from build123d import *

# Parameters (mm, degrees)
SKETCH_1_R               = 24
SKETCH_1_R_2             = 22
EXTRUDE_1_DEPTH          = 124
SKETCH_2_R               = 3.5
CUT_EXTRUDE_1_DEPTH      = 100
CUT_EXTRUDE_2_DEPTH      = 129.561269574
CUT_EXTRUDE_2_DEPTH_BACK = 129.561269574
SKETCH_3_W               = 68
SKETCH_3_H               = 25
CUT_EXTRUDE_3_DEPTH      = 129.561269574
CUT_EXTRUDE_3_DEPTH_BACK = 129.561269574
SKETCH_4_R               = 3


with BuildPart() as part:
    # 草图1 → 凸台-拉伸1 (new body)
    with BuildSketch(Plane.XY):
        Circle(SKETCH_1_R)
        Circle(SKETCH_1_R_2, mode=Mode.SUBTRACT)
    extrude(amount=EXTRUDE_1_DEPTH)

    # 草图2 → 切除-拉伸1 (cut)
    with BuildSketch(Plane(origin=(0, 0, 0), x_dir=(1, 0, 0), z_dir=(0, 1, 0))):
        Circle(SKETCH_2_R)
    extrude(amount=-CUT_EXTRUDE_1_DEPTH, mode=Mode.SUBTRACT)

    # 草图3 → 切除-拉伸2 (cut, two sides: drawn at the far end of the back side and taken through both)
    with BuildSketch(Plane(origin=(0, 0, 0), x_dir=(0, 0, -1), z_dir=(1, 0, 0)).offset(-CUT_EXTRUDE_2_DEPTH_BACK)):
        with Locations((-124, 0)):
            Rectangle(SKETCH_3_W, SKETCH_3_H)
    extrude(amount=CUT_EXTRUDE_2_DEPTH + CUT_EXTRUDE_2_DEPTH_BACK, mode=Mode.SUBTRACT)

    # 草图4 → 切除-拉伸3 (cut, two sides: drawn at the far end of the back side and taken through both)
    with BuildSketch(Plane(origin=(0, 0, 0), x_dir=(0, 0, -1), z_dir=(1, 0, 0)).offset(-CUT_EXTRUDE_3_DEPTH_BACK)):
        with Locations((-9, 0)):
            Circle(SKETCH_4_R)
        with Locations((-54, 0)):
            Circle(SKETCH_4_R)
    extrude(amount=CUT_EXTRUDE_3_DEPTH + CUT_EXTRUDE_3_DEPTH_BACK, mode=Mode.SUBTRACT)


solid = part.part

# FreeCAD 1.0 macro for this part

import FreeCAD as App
import Part
import Sketcher
Q = App.Units.Quantity

doc = App.newDocument("Part")
body = doc.addObject("PartDesign::Body", "Body")

# Sketch on XY plane
sketch1 = doc.addObject("Sketcher::SketchObject", "Sketch")
body.addObject(sketch1)
sketch1.AttachmentSupport = (doc.XY_Plane, [""])
sketch1.MapMode = "FlatFace"
sketch1.addGeometry([
    Part.Circle(App.Vector(0, 0, 0), App.Vector(0, 0, 1), 24),
    Part.Circle(App.Vector(0, 0, 0), App.Vector(0, 0, 1), 22),
], False)
sketch1.addConstraint([
    Sketcher.Constraint("Coincident", 0, 3, -1, 1),
    Sketcher.Constraint("Coincident", 1, 3, -1, 1),
    Sketcher.Constraint("Diameter", 0, Q("48 mm")),
    Sketcher.Constraint("Diameter", 1, Q("44 mm")),
])
pad1 = doc.addObject("PartDesign::Pad", "Pad")
body.addObject(pad1)
pad1.Profile = sketch1
pad1.Length = 124

# Sketch on XZ plane
sketch2 = doc.addObject("Sketcher::SketchObject", "Sketch001")
body.addObject(sketch2)
sketch2.AttachmentSupport = (doc.XZ_Plane, [""])
sketch2.MapMode = "FlatFace"
sketch2.addGeometry(Part.Circle(App.Vector(0, 0, 0), App.Vector(0, 0, 1), 3.5), False)
sketch2.addConstraint([
    Sketcher.Constraint("Coincident", 0, 3, -1, 1),
    Sketcher.Constraint("Diameter", 0, Q("7 mm")),
])
pocket1 = doc.addObject("PartDesign::Pocket", "Pocket")
body.addObject(pocket1)
pocket1.Profile = sketch2
pocket1.Length = 100
pocket1.Reversed = True

# Sketch on YZ plane
sketch3 = doc.addObject("Sketcher::SketchObject", "Sketch002")
body.addObject(sketch3)
sketch3.AttachmentSupport = (doc.YZ_Plane, [""])
sketch3.MapMode = "FlatFace"
sketch3.addGeometry([
    Part.LineSegment(App.Vector(12, 158, 0), App.Vector(-12, 158, 0)),
    Part.LineSegment(App.Vector(-12, 158, 0), App.Vector(-12, 90, 0)),
    Part.LineSegment(App.Vector(-12, 90, 0), App.Vector(12, 90, 0)),
    Part.LineSegment(App.Vector(12, 90, 0), App.Vector(12, 158, 0)),
], False)
sketch3.addConstraint([
    Sketcher.Constraint("Coincident", 0, 2, 1, 1),
    Sketcher.Constraint("Coincident", 1, 2, 2, 1),
    Sketcher.Constraint("Coincident", 2, 2, 3, 1),
    Sketcher.Constraint("Coincident", 3, 2, 0, 1),
    Sketcher.Constraint("Horizontal", 0),
    Sketcher.Constraint("Vertical", 1),
    Sketcher.Constraint("Horizontal", 2),
    Sketcher.Constraint("Vertical", 3),
    Sketcher.Constraint("DistanceX", 0, 2, 0, 1, Q("25 mm")),
    Sketcher.Constraint("DistanceY", 1, 2, 1, 1, Q("68 mm")),
    Sketcher.Constraint("DistanceY", -1, 1, 0, 2, Q("158 mm")),
    Sketcher.Constraint("DistanceX", 0, 2, -1, 1, Q("12.5 mm")),
])
pocket2 = doc.addObject("PartDesign::Pocket", "Pocket001")
body.addObject(pocket2)
pocket2.Profile = sketch3
pocket2.Type = "ThroughAll"
pocket2.Midplane = True

# Sketch on YZ plane
sketch4 = doc.addObject("Sketcher::SketchObject", "Sketch003")
body.addObject(sketch4)
sketch4.AttachmentSupport = (doc.YZ_Plane, [""])
sketch4.MapMode = "FlatFace"
sketch4.addGeometry([
    Part.Circle(App.Vector(0, 9, 0), App.Vector(0, 0, 1), 3),
    Part.Circle(App.Vector(0, 54, 0), App.Vector(0, 0, 1), 3),
], False)
sketch4.addConstraint([
    Sketcher.Constraint("Equal", 0, 1),
    Sketcher.Constraint("PointOnObject", 0, 3, -2),
    Sketcher.Constraint("PointOnObject", 1, 3, -2),
    Sketcher.Constraint("Diameter", 0, Q("6 mm")),
    Sketcher.Constraint("DistanceY", -1, 1, 0, 3, Q("9 mm")),
    Sketcher.Constraint("DistanceY", -1, 1, 1, 3, Q("54 mm")),
])
pocket3 = doc.addObject("PartDesign::Pocket", "Pocket002")
body.addObject(pocket3)
pocket3.Profile = sketch4
pocket3.Type = "ThroughAll"
pocket3.Midplane = True

doc.recompute()
